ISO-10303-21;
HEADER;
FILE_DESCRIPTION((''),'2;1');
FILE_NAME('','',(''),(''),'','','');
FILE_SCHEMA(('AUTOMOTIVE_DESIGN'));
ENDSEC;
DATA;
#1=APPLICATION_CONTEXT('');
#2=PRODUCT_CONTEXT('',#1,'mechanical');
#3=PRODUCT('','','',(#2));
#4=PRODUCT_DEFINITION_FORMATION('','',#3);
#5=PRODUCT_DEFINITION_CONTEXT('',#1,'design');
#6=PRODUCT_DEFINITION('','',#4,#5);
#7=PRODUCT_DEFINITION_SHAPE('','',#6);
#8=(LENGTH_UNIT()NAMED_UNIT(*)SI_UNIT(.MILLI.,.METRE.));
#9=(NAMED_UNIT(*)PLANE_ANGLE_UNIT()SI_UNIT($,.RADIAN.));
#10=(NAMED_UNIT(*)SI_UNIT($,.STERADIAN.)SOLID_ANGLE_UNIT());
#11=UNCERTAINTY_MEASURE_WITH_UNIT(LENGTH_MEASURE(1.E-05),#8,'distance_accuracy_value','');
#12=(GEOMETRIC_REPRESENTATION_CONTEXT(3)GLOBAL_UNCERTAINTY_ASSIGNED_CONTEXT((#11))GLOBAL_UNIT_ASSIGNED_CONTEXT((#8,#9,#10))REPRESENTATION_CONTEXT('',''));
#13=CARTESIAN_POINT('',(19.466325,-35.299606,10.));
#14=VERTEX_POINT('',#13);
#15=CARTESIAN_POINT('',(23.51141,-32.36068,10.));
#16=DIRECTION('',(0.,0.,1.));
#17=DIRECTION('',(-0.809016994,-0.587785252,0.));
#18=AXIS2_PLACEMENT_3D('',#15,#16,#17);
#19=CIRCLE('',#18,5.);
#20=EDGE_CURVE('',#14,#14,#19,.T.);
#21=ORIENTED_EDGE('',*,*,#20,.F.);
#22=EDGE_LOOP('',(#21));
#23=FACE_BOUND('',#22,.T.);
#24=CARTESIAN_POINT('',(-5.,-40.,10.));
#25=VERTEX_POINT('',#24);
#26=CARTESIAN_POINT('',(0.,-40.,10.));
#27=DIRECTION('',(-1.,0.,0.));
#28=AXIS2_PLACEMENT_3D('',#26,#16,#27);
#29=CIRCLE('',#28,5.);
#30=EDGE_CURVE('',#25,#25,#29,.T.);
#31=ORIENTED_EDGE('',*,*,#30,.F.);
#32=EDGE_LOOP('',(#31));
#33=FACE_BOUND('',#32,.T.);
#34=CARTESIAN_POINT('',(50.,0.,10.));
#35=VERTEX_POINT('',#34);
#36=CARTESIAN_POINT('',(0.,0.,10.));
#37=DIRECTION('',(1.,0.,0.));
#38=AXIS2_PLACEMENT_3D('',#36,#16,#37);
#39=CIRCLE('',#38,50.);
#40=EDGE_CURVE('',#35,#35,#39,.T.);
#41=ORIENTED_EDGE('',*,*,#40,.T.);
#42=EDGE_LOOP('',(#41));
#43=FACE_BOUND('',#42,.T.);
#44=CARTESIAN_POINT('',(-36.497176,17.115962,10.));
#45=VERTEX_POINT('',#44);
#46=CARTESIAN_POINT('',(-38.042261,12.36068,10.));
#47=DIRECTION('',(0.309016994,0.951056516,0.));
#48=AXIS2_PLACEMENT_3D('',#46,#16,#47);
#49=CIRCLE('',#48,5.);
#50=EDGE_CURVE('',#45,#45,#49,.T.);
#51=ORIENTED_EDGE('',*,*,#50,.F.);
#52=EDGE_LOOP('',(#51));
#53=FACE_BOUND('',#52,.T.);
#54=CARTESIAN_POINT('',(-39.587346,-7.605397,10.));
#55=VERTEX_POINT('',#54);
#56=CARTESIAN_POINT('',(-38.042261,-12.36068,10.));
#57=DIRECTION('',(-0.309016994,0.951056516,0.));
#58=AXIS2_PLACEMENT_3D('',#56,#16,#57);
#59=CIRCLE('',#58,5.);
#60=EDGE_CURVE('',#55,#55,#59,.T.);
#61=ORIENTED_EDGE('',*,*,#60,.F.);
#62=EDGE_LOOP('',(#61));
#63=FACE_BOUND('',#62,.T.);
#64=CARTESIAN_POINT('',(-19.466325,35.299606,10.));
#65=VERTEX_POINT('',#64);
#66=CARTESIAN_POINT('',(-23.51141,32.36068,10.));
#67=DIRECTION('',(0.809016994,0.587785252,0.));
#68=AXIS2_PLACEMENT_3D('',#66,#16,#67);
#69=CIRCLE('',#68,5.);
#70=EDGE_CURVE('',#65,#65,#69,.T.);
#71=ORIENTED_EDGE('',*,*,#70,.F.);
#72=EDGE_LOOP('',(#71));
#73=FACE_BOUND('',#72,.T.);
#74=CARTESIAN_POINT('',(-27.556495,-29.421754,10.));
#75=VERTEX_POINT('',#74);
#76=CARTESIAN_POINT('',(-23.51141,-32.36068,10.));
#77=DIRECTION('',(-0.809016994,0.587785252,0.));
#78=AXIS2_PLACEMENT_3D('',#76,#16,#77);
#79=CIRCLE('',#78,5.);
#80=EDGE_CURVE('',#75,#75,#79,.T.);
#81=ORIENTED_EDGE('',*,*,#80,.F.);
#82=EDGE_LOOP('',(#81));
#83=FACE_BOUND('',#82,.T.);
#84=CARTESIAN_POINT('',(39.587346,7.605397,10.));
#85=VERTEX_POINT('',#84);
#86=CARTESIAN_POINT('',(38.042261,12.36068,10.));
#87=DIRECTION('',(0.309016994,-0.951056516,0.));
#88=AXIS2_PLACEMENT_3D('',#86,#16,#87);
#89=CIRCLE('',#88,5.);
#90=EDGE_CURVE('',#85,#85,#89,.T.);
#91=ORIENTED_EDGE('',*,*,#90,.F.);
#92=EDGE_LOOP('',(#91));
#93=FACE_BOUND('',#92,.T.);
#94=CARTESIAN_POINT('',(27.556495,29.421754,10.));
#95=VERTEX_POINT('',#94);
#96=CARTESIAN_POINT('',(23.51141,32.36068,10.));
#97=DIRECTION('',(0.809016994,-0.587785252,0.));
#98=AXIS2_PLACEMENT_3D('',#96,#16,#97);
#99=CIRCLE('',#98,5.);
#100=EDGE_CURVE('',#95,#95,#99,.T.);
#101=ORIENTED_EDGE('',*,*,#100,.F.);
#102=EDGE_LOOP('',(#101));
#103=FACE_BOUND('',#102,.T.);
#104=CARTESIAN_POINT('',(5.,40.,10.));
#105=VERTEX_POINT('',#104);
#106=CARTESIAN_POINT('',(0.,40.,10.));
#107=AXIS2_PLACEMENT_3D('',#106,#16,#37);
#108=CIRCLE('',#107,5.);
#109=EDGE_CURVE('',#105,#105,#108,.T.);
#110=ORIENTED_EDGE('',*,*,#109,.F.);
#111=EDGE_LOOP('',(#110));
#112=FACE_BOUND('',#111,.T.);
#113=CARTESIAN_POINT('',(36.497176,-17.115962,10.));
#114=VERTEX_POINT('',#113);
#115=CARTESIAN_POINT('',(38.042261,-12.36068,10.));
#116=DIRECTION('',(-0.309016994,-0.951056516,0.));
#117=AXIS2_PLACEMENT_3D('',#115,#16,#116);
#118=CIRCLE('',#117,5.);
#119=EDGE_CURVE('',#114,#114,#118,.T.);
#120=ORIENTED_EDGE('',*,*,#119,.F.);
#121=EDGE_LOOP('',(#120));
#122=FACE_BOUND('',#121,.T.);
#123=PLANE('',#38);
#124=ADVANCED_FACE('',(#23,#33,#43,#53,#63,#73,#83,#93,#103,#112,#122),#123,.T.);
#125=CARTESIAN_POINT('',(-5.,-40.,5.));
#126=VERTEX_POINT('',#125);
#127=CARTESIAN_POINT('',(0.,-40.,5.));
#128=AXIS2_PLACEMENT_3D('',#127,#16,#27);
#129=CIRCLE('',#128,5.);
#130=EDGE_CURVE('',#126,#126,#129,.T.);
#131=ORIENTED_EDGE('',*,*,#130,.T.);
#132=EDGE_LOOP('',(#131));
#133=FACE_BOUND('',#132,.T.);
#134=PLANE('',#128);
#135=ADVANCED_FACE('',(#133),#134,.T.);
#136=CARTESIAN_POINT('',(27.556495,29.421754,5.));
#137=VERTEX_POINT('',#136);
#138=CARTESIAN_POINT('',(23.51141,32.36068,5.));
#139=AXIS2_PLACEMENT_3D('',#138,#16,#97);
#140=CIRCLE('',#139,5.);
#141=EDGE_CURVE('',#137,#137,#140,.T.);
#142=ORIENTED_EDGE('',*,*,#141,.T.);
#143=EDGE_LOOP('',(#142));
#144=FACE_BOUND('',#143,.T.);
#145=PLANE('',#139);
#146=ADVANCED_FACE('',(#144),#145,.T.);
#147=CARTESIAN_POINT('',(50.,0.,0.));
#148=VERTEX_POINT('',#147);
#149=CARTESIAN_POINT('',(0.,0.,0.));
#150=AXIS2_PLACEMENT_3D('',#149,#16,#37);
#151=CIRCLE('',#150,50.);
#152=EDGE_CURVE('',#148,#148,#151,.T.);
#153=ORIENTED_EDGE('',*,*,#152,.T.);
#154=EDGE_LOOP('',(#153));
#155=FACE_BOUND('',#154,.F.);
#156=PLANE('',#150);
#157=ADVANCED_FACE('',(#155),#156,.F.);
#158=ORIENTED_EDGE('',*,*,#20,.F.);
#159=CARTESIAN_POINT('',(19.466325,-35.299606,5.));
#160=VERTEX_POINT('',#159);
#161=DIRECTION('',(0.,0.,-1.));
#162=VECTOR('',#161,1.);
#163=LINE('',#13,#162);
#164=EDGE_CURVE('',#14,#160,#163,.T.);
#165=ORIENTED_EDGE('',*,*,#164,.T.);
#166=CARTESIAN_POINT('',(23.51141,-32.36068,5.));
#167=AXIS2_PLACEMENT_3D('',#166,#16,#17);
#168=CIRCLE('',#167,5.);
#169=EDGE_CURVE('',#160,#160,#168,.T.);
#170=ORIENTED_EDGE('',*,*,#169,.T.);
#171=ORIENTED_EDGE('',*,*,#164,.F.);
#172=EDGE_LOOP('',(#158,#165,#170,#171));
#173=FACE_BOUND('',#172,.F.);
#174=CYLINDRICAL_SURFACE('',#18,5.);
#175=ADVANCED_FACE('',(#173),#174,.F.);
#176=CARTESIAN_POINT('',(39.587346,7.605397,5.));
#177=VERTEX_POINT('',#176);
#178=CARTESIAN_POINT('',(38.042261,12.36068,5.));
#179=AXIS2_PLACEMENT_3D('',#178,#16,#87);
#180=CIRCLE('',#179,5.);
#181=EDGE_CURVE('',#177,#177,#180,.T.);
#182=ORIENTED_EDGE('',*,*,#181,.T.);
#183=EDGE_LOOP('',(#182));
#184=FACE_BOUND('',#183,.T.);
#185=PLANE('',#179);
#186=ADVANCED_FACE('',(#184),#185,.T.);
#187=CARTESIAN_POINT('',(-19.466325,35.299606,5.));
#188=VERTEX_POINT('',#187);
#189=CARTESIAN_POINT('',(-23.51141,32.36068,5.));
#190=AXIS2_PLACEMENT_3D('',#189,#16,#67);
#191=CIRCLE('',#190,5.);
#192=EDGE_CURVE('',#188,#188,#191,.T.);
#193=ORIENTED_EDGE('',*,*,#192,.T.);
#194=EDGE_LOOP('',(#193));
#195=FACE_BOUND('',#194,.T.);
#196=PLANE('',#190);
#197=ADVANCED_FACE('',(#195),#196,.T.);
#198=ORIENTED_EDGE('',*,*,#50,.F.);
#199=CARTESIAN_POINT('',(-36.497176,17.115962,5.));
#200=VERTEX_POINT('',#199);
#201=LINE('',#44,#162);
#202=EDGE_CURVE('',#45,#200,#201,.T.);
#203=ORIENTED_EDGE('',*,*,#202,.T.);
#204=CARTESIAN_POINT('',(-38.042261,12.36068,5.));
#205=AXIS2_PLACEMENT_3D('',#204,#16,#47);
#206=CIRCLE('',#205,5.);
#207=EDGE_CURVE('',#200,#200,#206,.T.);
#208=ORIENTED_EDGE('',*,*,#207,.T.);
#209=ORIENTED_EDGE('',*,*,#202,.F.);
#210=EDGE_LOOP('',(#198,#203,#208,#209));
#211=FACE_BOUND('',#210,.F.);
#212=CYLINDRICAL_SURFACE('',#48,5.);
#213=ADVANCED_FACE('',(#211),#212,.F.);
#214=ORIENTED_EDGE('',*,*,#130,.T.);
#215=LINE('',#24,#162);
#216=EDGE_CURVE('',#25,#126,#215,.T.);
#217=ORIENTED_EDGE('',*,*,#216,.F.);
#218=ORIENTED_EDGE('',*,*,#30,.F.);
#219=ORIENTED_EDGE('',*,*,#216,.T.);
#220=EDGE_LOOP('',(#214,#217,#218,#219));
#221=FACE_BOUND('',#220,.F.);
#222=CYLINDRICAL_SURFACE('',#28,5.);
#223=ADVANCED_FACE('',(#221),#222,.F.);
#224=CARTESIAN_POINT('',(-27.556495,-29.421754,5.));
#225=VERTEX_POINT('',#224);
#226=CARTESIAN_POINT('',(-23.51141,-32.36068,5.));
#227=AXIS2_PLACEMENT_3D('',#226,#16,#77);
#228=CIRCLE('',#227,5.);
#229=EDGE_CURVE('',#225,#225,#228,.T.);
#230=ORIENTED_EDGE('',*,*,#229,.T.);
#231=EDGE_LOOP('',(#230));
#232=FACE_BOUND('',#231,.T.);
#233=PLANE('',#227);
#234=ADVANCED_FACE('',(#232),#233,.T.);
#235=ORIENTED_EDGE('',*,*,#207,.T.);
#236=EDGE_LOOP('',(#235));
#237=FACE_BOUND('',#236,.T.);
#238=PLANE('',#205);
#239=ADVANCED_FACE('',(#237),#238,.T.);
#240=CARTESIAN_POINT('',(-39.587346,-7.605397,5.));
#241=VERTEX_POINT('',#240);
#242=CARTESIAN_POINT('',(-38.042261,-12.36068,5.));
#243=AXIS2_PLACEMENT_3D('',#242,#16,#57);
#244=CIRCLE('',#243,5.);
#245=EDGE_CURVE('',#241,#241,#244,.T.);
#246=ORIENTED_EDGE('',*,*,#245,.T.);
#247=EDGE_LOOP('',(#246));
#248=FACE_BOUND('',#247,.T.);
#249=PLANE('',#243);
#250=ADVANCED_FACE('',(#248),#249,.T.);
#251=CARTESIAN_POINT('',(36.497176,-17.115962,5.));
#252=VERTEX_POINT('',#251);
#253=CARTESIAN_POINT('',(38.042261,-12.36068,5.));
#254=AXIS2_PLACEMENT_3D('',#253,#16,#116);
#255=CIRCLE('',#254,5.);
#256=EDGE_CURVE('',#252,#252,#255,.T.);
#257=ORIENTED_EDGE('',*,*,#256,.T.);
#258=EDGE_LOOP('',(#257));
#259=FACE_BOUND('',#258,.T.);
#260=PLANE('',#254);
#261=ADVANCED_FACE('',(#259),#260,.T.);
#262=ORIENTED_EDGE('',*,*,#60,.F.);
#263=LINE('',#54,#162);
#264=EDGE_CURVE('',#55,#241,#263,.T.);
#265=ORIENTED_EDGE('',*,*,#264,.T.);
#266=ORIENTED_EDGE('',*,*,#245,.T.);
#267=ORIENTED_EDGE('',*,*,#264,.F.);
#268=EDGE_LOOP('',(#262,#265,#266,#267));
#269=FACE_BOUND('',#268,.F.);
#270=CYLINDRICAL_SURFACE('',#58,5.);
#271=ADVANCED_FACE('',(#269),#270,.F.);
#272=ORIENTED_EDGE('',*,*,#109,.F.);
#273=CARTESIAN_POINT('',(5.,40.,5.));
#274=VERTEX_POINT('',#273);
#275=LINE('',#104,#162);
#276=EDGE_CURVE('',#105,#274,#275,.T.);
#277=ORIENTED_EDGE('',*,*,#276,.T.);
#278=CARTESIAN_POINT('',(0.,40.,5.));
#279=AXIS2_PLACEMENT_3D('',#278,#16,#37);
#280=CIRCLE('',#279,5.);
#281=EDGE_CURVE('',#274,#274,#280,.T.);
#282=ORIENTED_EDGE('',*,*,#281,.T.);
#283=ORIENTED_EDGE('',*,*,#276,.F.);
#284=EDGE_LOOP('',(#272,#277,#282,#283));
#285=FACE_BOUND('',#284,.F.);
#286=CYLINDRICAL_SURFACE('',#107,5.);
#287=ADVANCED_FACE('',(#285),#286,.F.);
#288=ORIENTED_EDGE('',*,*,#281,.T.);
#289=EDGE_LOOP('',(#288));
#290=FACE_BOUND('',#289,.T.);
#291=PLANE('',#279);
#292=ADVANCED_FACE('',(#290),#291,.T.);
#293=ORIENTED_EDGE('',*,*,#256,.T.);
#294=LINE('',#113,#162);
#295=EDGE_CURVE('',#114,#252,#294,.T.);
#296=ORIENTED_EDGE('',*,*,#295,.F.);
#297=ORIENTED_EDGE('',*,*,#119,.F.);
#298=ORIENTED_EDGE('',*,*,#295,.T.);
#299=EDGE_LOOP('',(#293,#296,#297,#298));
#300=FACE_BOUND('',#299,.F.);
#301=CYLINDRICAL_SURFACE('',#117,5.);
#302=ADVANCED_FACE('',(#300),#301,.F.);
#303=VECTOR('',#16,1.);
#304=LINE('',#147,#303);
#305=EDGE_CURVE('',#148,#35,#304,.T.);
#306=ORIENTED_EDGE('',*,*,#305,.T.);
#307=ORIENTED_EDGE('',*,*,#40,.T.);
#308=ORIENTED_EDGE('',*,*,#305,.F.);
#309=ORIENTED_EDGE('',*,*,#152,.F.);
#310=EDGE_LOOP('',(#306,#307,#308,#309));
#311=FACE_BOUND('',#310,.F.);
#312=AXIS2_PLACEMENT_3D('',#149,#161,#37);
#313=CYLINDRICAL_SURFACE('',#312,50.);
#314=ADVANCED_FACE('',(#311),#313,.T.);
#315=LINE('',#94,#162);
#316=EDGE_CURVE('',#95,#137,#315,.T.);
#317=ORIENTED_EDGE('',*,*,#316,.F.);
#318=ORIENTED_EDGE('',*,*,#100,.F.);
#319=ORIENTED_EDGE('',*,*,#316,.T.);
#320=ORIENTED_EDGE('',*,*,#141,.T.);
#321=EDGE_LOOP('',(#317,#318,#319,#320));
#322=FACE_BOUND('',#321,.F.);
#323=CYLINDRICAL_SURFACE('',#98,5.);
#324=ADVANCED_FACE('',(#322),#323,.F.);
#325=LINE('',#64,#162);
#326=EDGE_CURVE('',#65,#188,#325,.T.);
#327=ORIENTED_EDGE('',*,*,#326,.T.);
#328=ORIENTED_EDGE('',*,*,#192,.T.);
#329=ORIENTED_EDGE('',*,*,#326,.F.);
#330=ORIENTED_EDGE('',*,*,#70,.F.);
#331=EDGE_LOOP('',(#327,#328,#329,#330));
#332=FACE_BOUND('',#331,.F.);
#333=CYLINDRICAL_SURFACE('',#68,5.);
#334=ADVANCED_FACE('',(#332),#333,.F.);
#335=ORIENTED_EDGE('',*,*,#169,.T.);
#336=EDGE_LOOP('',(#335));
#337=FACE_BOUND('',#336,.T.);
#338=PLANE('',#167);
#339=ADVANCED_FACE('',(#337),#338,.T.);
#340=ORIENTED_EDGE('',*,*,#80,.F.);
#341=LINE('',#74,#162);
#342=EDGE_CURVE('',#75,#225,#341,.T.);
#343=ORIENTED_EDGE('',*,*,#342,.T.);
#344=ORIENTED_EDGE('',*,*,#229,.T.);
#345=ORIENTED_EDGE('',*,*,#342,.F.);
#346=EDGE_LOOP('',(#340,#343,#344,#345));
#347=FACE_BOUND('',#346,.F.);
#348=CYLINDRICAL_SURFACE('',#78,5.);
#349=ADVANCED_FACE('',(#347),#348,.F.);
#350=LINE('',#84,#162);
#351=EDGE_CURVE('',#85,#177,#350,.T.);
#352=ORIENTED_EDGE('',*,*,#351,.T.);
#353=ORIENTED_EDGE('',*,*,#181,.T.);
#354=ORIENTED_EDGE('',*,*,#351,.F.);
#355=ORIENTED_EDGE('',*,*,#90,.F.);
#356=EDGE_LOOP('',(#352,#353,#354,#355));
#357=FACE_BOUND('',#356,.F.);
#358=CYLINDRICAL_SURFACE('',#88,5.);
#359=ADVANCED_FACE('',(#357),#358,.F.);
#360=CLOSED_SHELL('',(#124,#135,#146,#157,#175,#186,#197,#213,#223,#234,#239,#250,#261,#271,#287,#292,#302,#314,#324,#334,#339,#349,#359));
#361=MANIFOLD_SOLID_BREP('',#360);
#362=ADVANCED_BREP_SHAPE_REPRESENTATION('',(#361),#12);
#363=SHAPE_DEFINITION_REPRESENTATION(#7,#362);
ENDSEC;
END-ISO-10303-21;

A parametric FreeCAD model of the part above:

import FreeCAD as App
import Part
import Sketcher

doc = App.newDocument("Part")
body = doc.addObject("PartDesign::Body", "Body")

sketch1 = body.newObject("Sketcher::SketchObject", "Sketch")
sketch1.AttachmentSupport = (doc.getObject("XY_Plane"), [""])
sketch1.MapMode = "FlatFace"
sketch1.addGeometry(Part.Circle(App.Vector(0, 0, 0), App.Vector(0, 0, 1), 50), False)
sketch1.addConstraint([
    Sketcher.Constraint("Coincident", 0, 3, -1, 1),
    Sketcher.Constraint("Diameter", 0, 100.0),
])
pad1 = body.newObject("PartDesign::Pad", "Pad")
pad1.Profile = sketch1
pad1.Length = 10

sketch2 = body.newObject("Sketcher::SketchObject", "Sketch001")
sketch2.AttachmentSupport = (doc.getObject("XY_Plane"), [""])
sketch2.MapMode = "FlatFace"
sketch2.AttachmentOffset = App.Placement(App.Vector(0, 0, 10), App.Rotation())
sketch2.addGeometry(Part.Circle(App.Vector(0, 40, 0), App.Vector(0, 0, 1), 5), False)
sketch2.addConstraint([
    Sketcher.Constraint("PointOnObject", 0, 3, -2),
    Sketcher.Constraint("Diameter", 0, 10.0),
    Sketcher.Constraint("DistanceY", -1, 1, 0, 3, 40.0),
])
pocket1 = body.newObject("PartDesign::Pocket", "Pocket")
pocket1.Profile = sketch2
pocket1.Length = 5
doc.recompute()

polarpattern = body.newObject("PartDesign::PolarPattern", "PolarPattern")
polarpattern.Originals = [pocket1]
polarpattern.Axis = (doc.getObject("Z_Axis"), [""])
polarpattern.Angle = 360
polarpattern.Occurrences = 10
body.Tip = polarpattern

doc.recompute()
